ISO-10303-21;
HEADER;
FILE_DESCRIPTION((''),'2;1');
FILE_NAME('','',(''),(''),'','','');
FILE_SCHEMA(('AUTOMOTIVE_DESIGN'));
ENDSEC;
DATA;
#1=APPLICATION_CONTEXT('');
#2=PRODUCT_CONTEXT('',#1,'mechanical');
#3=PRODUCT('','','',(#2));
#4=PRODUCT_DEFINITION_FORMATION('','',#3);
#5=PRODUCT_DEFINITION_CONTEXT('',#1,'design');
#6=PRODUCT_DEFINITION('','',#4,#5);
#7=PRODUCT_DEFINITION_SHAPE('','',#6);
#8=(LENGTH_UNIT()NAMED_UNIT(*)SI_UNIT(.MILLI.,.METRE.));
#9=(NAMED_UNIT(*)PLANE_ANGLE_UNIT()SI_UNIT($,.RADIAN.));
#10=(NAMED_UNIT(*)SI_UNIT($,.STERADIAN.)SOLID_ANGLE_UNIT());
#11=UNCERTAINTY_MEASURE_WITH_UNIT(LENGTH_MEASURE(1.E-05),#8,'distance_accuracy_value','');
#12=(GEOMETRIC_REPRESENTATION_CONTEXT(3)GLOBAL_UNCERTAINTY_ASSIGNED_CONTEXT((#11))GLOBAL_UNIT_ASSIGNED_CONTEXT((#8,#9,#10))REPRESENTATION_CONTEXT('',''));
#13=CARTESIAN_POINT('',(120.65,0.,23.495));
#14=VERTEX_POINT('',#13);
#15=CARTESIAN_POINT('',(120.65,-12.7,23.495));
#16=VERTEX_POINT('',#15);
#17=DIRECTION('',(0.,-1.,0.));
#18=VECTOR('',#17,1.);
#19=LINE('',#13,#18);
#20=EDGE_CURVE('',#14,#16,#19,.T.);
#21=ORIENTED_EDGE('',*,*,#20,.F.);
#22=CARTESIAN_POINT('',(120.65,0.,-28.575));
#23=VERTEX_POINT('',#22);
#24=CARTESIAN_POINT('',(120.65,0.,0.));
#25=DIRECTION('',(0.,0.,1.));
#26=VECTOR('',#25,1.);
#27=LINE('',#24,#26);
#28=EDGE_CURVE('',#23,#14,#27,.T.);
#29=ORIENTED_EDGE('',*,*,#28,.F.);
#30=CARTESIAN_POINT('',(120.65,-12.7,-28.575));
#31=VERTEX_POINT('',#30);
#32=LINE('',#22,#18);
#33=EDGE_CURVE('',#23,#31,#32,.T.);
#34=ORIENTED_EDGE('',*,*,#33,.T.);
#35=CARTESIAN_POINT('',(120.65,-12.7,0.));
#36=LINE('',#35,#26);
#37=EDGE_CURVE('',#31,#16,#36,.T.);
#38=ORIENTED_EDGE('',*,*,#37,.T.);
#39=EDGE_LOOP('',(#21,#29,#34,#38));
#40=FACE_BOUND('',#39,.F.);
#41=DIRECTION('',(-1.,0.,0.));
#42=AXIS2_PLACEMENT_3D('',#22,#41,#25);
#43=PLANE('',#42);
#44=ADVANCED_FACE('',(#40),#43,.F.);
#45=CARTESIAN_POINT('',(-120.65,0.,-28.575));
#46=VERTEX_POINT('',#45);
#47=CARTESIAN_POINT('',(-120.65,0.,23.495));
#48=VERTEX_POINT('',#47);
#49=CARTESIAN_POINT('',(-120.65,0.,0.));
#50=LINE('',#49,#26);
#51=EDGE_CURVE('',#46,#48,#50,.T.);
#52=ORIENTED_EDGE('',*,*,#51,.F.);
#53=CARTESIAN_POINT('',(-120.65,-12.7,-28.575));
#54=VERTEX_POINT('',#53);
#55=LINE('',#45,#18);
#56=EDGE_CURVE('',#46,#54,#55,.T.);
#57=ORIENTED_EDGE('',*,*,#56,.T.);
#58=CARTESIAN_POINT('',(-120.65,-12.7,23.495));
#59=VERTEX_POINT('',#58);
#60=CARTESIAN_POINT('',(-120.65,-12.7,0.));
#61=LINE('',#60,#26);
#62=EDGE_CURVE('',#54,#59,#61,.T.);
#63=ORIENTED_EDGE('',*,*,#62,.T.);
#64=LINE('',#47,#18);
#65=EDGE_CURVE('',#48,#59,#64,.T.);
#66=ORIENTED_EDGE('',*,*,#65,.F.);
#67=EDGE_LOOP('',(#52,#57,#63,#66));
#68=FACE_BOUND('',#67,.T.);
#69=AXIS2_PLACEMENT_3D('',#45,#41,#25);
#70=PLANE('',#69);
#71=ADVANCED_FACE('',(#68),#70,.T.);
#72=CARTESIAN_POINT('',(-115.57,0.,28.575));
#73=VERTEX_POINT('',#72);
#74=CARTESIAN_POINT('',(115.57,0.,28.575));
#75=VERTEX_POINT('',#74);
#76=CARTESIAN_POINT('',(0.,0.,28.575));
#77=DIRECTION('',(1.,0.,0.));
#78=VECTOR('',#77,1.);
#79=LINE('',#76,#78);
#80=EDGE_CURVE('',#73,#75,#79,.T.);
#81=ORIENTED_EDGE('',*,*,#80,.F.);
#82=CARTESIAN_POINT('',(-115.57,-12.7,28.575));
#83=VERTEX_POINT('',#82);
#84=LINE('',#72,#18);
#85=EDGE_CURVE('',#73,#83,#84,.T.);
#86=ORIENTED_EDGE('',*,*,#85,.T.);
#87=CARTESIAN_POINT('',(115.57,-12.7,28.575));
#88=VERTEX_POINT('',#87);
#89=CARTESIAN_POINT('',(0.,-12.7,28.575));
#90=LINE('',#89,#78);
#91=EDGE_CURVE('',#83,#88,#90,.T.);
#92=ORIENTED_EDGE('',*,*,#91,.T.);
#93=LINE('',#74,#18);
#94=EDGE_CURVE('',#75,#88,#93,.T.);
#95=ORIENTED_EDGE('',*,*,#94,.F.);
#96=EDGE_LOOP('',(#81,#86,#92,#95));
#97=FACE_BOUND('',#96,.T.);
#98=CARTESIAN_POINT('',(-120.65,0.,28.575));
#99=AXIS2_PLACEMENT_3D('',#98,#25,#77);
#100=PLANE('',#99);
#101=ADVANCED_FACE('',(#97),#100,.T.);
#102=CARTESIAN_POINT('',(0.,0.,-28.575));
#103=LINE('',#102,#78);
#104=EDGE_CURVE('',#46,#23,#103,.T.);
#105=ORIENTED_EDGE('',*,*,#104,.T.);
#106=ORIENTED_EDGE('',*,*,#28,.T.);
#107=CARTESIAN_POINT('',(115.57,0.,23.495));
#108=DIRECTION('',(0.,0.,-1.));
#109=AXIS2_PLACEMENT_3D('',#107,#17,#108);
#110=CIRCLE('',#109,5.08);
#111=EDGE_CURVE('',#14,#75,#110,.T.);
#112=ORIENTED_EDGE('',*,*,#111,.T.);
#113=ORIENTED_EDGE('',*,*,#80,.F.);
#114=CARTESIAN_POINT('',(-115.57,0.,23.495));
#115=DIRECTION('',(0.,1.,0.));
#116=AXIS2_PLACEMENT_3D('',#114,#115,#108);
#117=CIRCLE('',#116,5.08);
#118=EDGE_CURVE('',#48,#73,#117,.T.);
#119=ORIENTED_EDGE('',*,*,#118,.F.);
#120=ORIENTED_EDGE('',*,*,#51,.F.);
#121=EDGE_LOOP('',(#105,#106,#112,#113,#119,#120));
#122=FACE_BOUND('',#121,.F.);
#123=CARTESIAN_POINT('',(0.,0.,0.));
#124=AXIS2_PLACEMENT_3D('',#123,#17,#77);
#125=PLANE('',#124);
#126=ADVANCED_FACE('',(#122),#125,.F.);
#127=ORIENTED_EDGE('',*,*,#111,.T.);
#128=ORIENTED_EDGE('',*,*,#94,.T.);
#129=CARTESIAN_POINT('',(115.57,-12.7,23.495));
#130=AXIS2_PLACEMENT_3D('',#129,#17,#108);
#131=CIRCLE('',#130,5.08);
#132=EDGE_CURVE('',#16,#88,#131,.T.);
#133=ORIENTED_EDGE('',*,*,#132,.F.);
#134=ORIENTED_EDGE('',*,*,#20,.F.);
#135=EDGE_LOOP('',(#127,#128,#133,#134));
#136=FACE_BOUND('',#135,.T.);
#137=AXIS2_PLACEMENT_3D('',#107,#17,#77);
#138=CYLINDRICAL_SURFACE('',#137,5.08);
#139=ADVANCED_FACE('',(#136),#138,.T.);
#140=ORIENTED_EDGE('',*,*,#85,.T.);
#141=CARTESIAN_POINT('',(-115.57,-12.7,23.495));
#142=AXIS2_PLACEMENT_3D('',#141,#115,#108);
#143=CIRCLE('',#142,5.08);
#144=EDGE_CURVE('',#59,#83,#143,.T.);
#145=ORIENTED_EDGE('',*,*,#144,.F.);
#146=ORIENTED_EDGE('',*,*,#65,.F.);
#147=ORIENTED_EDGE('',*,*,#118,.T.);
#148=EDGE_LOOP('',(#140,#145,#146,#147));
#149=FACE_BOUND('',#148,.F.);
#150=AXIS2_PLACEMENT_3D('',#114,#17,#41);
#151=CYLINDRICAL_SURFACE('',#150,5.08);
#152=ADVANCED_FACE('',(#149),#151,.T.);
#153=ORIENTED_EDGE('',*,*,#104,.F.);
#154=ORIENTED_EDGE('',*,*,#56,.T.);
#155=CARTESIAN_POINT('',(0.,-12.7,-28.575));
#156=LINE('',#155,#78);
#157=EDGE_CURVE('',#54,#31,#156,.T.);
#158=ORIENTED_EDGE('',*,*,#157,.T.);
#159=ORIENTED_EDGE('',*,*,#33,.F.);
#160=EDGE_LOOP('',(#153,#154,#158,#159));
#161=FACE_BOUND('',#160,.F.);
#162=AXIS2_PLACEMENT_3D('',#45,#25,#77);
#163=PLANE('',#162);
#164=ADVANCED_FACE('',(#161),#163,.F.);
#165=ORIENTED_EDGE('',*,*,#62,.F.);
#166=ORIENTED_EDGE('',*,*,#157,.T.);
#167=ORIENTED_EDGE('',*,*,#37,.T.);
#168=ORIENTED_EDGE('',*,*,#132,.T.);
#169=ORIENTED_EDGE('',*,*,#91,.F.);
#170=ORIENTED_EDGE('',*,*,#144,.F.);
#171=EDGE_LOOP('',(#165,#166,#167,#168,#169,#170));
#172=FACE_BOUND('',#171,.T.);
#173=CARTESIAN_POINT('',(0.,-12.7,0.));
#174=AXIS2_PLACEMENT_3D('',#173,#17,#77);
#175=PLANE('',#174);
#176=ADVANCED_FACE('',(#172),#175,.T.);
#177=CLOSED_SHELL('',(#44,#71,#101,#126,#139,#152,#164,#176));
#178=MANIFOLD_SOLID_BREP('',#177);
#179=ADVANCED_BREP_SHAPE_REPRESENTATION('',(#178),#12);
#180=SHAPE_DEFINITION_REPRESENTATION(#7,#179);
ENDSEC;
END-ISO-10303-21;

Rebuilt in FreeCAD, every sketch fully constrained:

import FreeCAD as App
import Part
import Sketcher
from FreeCAD import Vector
Q = App.Units.Quantity


def edges_at(feature, points):
    """Names of the edges that pass closest to the given points."""
    edges = feature.Shape.Edges
    near = lambda p: min(range(len(edges)), key=lambda i: edges[i].distToShape(Part.Vertex(*p))[0])
    return sorted({f"Edge{near(p) + 1}" for p in points})

doc = App.newDocument("Part")
body = doc.addObject("PartDesign::Body", "Body")

sketch1 = body.newObject("Sketcher::SketchObject", "Sketch")
sketch1.AttachmentSupport = (doc.getObject("XZ_Plane"), [""])
sketch1.MapMode = "FlatFace"
sketch1.addGeometry([
    Part.LineSegment(Vector(-120.65, 28.575, 0), Vector(-120.65, -28.575, 0)),
    Part.LineSegment(Vector(-120.65, -28.575, 0), Vector(120.65, -28.575, 0)),
    Part.LineSegment(Vector(120.65, -28.575, 0), Vector(120.65, 28.575, 0)),
    Part.LineSegment(Vector(120.65, 28.575, 0), Vector(-120.65, 28.575, 0)),
], False)
sketch1.addConstraint([
    Sketcher.Constraint("Coincident", 0, 2, 1, 1),
    Sketcher.Constraint("Coincident", 1, 2, 2, 1),
    Sketcher.Constraint("Coincident", 2, 2, 3, 1),
    Sketcher.Constraint("Coincident", 3, 2, 0, 1),
    Sketcher.Constraint("Vertical", 0),
    Sketcher.Constraint("Horizontal", 1),
    Sketcher.Constraint("Vertical", 2),
    Sketcher.Constraint("Horizontal", 3),
    Sketcher.Constraint("Symmetric", 0, 2, 2, 2, -1, 1),
    Sketcher.Constraint("DistanceX", 1, 1, 1, 2, Q("9.5 in")),
    Sketcher.Constraint("DistanceY", 0, 2, 0, 1, Q("2.25 in")),
])
pad1 = body.newObject("PartDesign::Pad", "Pad")
pad1.Profile = sketch1
pad1.Length = Q("0.5 in")
doc.recompute()

fillet = body.newObject("PartDesign::Fillet", "Fillet")
fillet.Base = (pad1, edges_at(pad1, [(-120.65, -6.35, 28.575), (120.65, -6.35, 28.575)]))
fillet.Radius = Q("0.2 in")

doc.recompute()
